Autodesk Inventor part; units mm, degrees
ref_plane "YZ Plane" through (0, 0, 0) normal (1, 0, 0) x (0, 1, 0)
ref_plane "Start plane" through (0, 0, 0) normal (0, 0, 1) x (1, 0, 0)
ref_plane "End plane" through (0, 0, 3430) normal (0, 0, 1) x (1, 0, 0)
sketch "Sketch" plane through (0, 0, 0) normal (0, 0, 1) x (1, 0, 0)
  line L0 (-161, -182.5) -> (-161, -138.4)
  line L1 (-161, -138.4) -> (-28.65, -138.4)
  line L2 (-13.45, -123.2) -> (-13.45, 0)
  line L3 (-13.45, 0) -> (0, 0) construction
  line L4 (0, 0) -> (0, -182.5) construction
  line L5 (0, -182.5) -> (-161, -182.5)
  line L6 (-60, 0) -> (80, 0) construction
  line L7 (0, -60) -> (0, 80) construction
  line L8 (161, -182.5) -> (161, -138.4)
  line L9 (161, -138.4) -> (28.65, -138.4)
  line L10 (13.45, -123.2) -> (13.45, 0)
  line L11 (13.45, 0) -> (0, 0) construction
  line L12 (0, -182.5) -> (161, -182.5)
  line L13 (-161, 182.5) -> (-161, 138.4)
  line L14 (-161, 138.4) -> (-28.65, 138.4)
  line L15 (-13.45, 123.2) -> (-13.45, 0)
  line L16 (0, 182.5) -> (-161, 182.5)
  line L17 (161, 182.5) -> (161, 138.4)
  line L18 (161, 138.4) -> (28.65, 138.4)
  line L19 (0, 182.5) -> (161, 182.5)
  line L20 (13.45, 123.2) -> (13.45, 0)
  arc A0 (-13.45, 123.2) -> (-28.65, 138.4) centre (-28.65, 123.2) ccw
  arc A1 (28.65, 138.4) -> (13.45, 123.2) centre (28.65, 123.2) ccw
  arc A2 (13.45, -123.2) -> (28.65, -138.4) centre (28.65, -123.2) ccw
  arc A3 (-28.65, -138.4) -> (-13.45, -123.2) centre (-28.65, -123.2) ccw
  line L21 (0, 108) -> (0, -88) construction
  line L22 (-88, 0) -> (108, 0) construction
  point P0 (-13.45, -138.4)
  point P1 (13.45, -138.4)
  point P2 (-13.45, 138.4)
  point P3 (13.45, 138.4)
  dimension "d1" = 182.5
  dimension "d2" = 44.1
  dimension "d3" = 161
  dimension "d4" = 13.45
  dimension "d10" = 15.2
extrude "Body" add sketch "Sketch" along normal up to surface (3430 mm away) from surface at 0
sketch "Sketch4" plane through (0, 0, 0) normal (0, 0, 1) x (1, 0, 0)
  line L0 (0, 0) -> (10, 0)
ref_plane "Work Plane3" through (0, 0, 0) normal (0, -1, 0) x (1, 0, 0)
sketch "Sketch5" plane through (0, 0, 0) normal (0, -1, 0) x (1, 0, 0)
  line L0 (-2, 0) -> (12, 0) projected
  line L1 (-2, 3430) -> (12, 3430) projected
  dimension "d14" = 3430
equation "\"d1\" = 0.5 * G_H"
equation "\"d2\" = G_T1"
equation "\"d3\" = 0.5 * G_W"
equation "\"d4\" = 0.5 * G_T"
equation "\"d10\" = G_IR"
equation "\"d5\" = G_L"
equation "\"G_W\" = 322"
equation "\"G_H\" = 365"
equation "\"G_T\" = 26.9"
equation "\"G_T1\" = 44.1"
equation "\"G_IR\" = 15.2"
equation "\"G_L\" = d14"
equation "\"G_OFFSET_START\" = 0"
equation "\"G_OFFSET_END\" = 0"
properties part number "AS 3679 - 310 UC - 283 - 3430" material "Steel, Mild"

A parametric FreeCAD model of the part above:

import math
import FreeCAD as App
import Part
import Sketcher
Q = App.Units.Quantity

doc = App.newDocument("Part")
body = doc.addObject("PartDesign::Body", "Body")

sketch1 = body.newObject("Sketcher::SketchObject", "Sketch")
sketch1.AttachmentSupport = (doc.getObject("XY_Plane"), [""])
sketch1.MapMode = "FlatFace"
sketch1.addGeometry([
    Part.LineSegment(App.Vector(-161, -138, 0), App.Vector(-161, -182, 0)),
    Part.LineSegment(App.Vector(-161, -182, 0), App.Vector(161, -182, 0)),
    Part.LineSegment(App.Vector(161, -182, 0), App.Vector(161, -138, 0)),
    Part.LineSegment(App.Vector(161, -138, 0), App.Vector(29, -138, 0)),
    Part.ArcOfCircle(Part.Circle(App.Vector(29, -123, 0), App.Vector(0, 0, 1), 15), math.radians(180), math.radians(270)),
    Part.LineSegment(App.Vector(13, -123, 0), App.Vector(13, 123, 0)),
    Part.ArcOfCircle(Part.Circle(App.Vector(29, 123, 0), App.Vector(0, 0, 1), 15), math.radians(90), math.radians(180)),
    Part.LineSegment(App.Vector(29, 138, 0), App.Vector(161, 138, 0)),
    Part.LineSegment(App.Vector(161, 138, 0), App.Vector(161, 182, 0)),
    Part.LineSegment(App.Vector(161, 182, 0), App.Vector(-161, 182, 0)),
    Part.LineSegment(App.Vector(-161, 182, 0), App.Vector(-161, 138, 0)),
    Part.LineSegment(App.Vector(-161, 138, 0), App.Vector(-29, 138, 0)),
    Part.ArcOfCircle(Part.Circle(App.Vector(-29, 123, 0), App.Vector(0, 0, 1), 15), math.radians(0), math.radians(90)),
    Part.LineSegment(App.Vector(-13, 123, 0), App.Vector(-13, -123, 0)),
    Part.ArcOfCircle(Part.Circle(App.Vector(-29, -123, 0), App.Vector(0, 0, 1), 15), math.radians(-90), math.radians(0)),
    Part.LineSegment(App.Vector(-29, -138, 0), App.Vector(-161, -138, 0)),
], False)
sketch1.addConstraint([
    Sketcher.Constraint("Coincident", 0, 2, 1, 1),
    Sketcher.Constraint("Coincident", 1, 2, 2, 1),
    Sketcher.Constraint("Coincident", 2, 2, 3, 1),
    Sketcher.Constraint("Tangent", 3, 2, 4, 2),
    Sketcher.Constraint("Tangent", 4, 1, 5, 1),
    Sketcher.Constraint("Tangent", 5, 2, 6, 2),
    Sketcher.Constraint("Tangent", 6, 1, 7, 1),
    Sketcher.Constraint("Coincident", 7, 2, 8, 1),
    Sketcher.Constraint("Coincident", 8, 2, 9, 1),
    Sketcher.Constraint("Coincident", 9, 2, 10, 1),
    Sketcher.Constraint("Coincident", 10, 2, 11, 1),
    Sketcher.Constraint("Tangent", 11, 2, 12, 2),
    Sketcher.Constraint("Tangent", 12, 1, 13, 1),
    Sketcher.Constraint("Tangent", 13, 2, 14, 2),
    Sketcher.Constraint("Tangent", 14, 1, 15, 1),
    Sketcher.Constraint("Coincident", 15, 2, 0, 1),
    Sketcher.Constraint("Vertical", 0),
    Sketcher.Constraint("Horizontal", 1),
    Sketcher.Constraint("Vertical", 2),
    Sketcher.Constraint("Horizontal", 3),
    Sketcher.Constraint("Vertical", 5),
    Sketcher.Constraint("Horizontal", 7),
    Sketcher.Constraint("Vertical", 8),
    Sketcher.Constraint("Horizontal", 9),
    Sketcher.Constraint("Vertical", 10),
    Sketcher.Constraint("Horizontal", 11),
    Sketcher.Constraint("Vertical", 13),
    Sketcher.Constraint("Horizontal", 15),
    Sketcher.Constraint("Equal", 4, 6),
    Sketcher.Constraint("Equal", 6, 12),
    Sketcher.Constraint("Equal", 12, 14),
    Sketcher.Constraint("Symmetric", 4, 3, 12, 3, -1, 1),
    Sketcher.Constraint("Symmetric", 0, 2, 8, 2, -1, 1),
    Sketcher.Constraint("Symmetric", 7, 2, 10, 2, -2),
    Sketcher.Constraint("Symmetric", 2, 2, 15, 2, -2),
    Sketcher.Constraint("Radius", 4, Q("15.2 mm")),
    Sketcher.Constraint("DistanceY", 0, 2, 0, 1, Q("44.1 mm")),
    Sketcher.Constraint("DistanceX", 0, 2, -1, 1, Q("161 mm")),
    Sketcher.Constraint("DistanceY", 0, 2, -1, 1, Q("182.5 mm")),
    Sketcher.Constraint("DistanceX", -1, 1, 4, 1, Q("13.45 mm")),
])
pad1 = body.newObject("PartDesign::Pad", "Pad")
pad1.Profile = sketch1
pad1.Length = 3430

doc.recompute()
